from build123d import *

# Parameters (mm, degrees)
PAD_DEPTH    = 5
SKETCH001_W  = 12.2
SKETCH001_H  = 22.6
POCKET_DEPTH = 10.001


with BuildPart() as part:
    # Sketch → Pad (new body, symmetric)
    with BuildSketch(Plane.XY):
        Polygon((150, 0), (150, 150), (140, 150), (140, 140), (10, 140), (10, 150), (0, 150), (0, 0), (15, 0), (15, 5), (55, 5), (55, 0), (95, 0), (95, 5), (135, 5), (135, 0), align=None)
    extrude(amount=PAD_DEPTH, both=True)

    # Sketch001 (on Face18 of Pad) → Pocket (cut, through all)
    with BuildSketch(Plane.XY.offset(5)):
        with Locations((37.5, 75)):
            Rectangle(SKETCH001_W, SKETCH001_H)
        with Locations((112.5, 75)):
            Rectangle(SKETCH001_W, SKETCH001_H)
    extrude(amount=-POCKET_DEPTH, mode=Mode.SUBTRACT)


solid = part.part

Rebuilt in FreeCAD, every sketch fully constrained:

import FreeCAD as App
import Part
import Sketcher


def add_polygon(sketch, points):
    """Adds a closed chain of lines whose ends are joined by coincident constraints."""
    first, n = sketch.GeometryCount, len(points)
    for a, b in zip(points, points[1:] + points[:1]):
        sketch.addGeometry(Part.LineSegment(App.Vector(*a, 0), App.Vector(*b, 0)), False)
    for i in range(n):
        sketch.addConstraint(Sketcher.Constraint("Coincident", first + i, 2, first + (i + 1) % n, 1))

doc = App.newDocument("Part")
params = doc.addObject("Spreadsheet::Sheet", "Params")
for row, (alias, value) in enumerate([
    ("sketch1_width", "10 mm"),
    ("sketch1_width2", "130 mm"),
    ("sketch1_width3", "15 mm"),
    ("sketch1_height", "150 mm"),
    ("sketch1_height2", "5 mm"),
    ("pad1_length", "10 mm"),
    ("sketch2_width", "12.2 mm"),
    ("sketch2_height", "22.6 mm"),
], start=1):
    params.set(f"A{row}", alias)
    params.set(f"B{row}", "=" + value)
    params.setAlias(f"B{row}", alias)

body = doc.addObject("PartDesign::Body", "Body")

# Sketch on XY plane
sketch1 = doc.addObject("Sketcher::SketchObject", "Sketch")
body.addObject(sketch1)
sketch1.AttachmentSupport = (doc.XY_Plane, [""])
sketch1.MapMode = "FlatFace"
add_polygon(sketch1, [(150, 0), (150, 150), (140, 150), (140, 140), (10, 140), (10, 150), (0, 150), (0, 0), (15, 0), (15, 5), (55, 5), (55, 0), (95, 0), (95, 5), (135, 5), (135, 0)])  # lines 0-15
sketch1.addConstraint(Sketcher.Constraint("Vertical", 0))
sketch1.addConstraint(Sketcher.Constraint("Horizontal", 1))
sketch1.addConstraint(Sketcher.Constraint("Vertical", 2))
sketch1.addConstraint(Sketcher.Constraint("Horizontal", 3))
sketch1.addConstraint(Sketcher.Constraint("Vertical", 4))
sketch1.addConstraint(Sketcher.Constraint("Horizontal", 5))
sketch1.addConstraint(Sketcher.Constraint("Vertical", 6))
sketch1.addConstraint(Sketcher.Constraint("Horizontal", 7))
sketch1.addConstraint(Sketcher.Constraint("Vertical", 8))
sketch1.addConstraint(Sketcher.Constraint("Horizontal", 9))
sketch1.addConstraint(Sketcher.Constraint("Vertical", 10))
sketch1.addConstraint(Sketcher.Constraint("Horizontal", 11))
sketch1.addConstraint(Sketcher.Constraint("Vertical", 12))
sketch1.addConstraint(Sketcher.Constraint("Horizontal", 13))
sketch1.addConstraint(Sketcher.Constraint("Vertical", 14))
sketch1.addConstraint(Sketcher.Constraint("Horizontal", 15))
sketch1.addConstraint(Sketcher.Constraint("Coincident", 6, 2, -1, 1))
sketch1.addConstraint(Sketcher.Constraint("PointOnObject", 10, 2, -1))
sketch1.addConstraint(Sketcher.Constraint("PointOnObject", 14, 2, -1))
sketch1.addConstraint(Sketcher.Constraint("Horizontal", 1, 2, 4, 2))
sketch1.addConstraint(Sketcher.Constraint("Horizontal", 9, 2, 12, 2))
sketch1.addConstraint(Sketcher.Constraint("Equal", 1, 5))
sketch1.addConstraint(Sketcher.Constraint("Equal", 9, 11))
sketch1.addConstraint(Sketcher.Constraint("Equal", 11, 13))
sketch1.addConstraint(Sketcher.Constraint("Equal", 7, 15))
sketch1.addConstraint(Sketcher.Constraint("Equal", 5, 2))
sketch1.addConstraint(Sketcher.Constraint("DistanceX", 1, 2, 1, 1, 10.0))
sketch1.addConstraint(Sketcher.Constraint("DistanceX", 3, 2, 3, 1, 130.0))
sketch1.addConstraint(Sketcher.Constraint("DistanceX", 7, 1, 7, 2, 15.0))
sketch1.addConstraint(Sketcher.Constraint("DistanceY", 0, 1, 0, 2, 150.0))
sketch1.addConstraint(Sketcher.Constraint("DistanceY", 8, 1, 8, 2, 5.0))
sketch1.setExpression("Constraints[42]", "Params.sketch1_width")
sketch1.setExpression("Constraints[43]", "Params.sketch1_width2")
sketch1.setExpression("Constraints[44]", "Params.sketch1_width3")
sketch1.setExpression("Constraints[45]", "Params.sketch1_height")
sketch1.setExpression("Constraints[46]", "Params.sketch1_height2")
pad1 = doc.addObject("PartDesign::Pad", "Pad")
body.addObject(pad1)
pad1.Profile = sketch1
pad1.setExpression("Length", "Params.pad1_length")
pad1.Midplane = True

# Sketch on XY plane
sketch2 = doc.addObject("Sketcher::SketchObject", "Sketch001")
body.addObject(sketch2)
sketch2.AttachmentSupport = (doc.XY_Plane, [""])
sketch2.MapMode = "FlatFace"
sketch2.AttachmentOffset = App.Placement(App.Vector(0, 0, 5), App.Rotation())
add_polygon(sketch2, [(31.4, 86.3), (31.4, 63.7), (43.6, 63.7), (43.6, 86.3)])  # lines 0-3
add_polygon(sketch2, [(106.4, 86.3), (106.4, 63.7), (118.6, 63.7), (118.6, 86.3)])  # lines 4-7
sketch2.addConstraint(Sketcher.Constraint("Vertical", 0))
sketch2.addConstraint(Sketcher.Constraint("Horizontal", 1))
sketch2.addConstraint(Sketcher.Constraint("Vertical", 2))
sketch2.addConstraint(Sketcher.Constraint("Horizontal", 3))
sketch2.addConstraint(Sketcher.Constraint("Vertical", 4))
sketch2.addConstraint(Sketcher.Constraint("Horizontal", 5))
sketch2.addConstraint(Sketcher.Constraint("Vertical", 6))
sketch2.addConstraint(Sketcher.Constraint("Horizontal", 7))
sketch2.addConstraint(Sketcher.Constraint("Horizontal", 1, 2, 4, 2))
sketch2.addConstraint(Sketcher.Constraint("Horizontal", 3, 2, 6, 2))
sketch2.addConstraint(Sketcher.Constraint("Equal", 3, 5))
sketch2.addConstraint(Sketcher.Constraint("DistanceX", 1, 1, 1, 2, 12.2))
sketch2.addConstraint(Sketcher.Constraint("DistanceY", 0, 2, 0, 1, 22.6))
sketch2.addConstraint(Sketcher.Constraint("DistanceX", 0, 2, 4, 2, 75.0))
sketch2.addConstraint(Sketcher.Constraint("DistanceX", -1, 1, 0, 2, 31.4))
sketch2.addConstraint(Sketcher.Constraint("DistanceY", -1, 1, 0, 2, 63.7))
sketch2.setExpression("Constraints[19]", "Params.sketch2_width")
sketch2.setExpression("Constraints[20]", "Params.sketch2_height")
pocket1 = doc.addObject("PartDesign::Pocket", "Pocket")
body.addObject(pocket1)
pocket1.Profile = sketch2
pocket1.Type = "ThroughAll"

doc.recompute()
